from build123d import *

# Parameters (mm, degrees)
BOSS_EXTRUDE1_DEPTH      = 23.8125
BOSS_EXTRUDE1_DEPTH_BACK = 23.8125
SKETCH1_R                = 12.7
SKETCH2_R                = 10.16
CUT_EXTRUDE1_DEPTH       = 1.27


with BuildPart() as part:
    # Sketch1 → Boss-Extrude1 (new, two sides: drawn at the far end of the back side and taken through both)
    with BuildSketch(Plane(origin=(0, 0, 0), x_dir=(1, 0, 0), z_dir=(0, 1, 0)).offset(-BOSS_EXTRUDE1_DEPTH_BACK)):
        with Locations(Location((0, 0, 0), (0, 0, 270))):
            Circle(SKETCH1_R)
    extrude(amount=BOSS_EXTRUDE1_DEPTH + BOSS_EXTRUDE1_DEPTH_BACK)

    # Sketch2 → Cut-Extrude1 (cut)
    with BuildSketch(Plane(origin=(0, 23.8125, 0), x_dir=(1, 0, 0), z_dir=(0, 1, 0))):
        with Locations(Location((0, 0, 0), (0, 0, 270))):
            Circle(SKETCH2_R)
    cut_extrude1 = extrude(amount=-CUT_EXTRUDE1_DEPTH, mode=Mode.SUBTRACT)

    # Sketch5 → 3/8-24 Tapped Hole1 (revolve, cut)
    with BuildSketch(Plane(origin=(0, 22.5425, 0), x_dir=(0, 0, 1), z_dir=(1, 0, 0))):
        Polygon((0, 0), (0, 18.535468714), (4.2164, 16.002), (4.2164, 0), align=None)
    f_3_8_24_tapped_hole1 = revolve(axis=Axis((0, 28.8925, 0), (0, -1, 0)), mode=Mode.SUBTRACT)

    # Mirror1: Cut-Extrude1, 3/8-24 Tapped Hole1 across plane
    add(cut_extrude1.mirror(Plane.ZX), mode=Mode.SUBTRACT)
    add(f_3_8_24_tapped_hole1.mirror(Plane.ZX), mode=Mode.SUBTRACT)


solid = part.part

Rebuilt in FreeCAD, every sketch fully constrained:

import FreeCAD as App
import Part
import Sketcher

V = App.Vector
Q = App.Units.Quantity


def add_polygon(sketch, points):
    """Adds a closed chain of lines whose ends are joined by coincident constraints."""
    first, n = sketch.GeometryCount, len(points)
    for a, b in zip(points, points[1:] + points[:1]):
        sketch.addGeometry(Part.LineSegment(App.Vector(*a, 0), App.Vector(*b, 0)), False)
    for i in range(n):
        sketch.addConstraint(Sketcher.Constraint("Coincident", first + i, 2, first + (i + 1) % n, 1))

doc = App.newDocument("Part")
body = doc.addObject("PartDesign::Body", "Body")

# Sketch on XZ plane
sketch1 = doc.addObject("Sketcher::SketchObject", "Sketch")
body.addObject(sketch1)
sketch1.AttachmentSupport = (doc.XZ_Plane, [""])
sketch1.MapMode = "FlatFace"
sketch1.addGeometry(Part.Circle(V(0, 0, 0), V(0, 0, 1), 13), False)
sketch1.addConstraint(Sketcher.Constraint("Coincident", 0, 3, -1, 1))
sketch1.addConstraint(Sketcher.Constraint("Diameter", 0, Q("1 in")))
pad1 = doc.addObject("PartDesign::Pad", "Pad")
body.addObject(pad1)
pad1.Profile = sketch1
pad1.Type = "TwoLengths"
pad1.Length = Q("0.9375 in")
pad1.Length2 = Q("0.9375 in")
pad1.Reversed = True

# Sketch on XZ plane
sketch2 = doc.addObject("Sketcher::SketchObject", "Sketch001")
body.addObject(sketch2)
sketch2.AttachmentSupport = (doc.XZ_Plane, [""])
sketch2.MapMode = "FlatFace"
sketch2.AttachmentOffset = App.Placement(V(0, 0, -0.9375 * 25.4), App.Rotation())
sketch2.addGeometry(Part.Circle(V(0, 0, 0), V(0, 0, 1), 10), False)
sketch2.addConstraint(Sketcher.Constraint("Coincident", 0, 3, -1, 1))
sketch2.addConstraint(Sketcher.Constraint("Diameter", 0, Q("0.8 in")))
pocket1 = doc.addObject("PartDesign::Pocket", "Pocket")
body.addObject(pocket1)
pocket1.Profile = sketch2
pocket1.Length = Q("0.05 in")
pocket1.Reversed = True

# Sketch on YZ plane
sketch3 = doc.addObject("Sketcher::SketchObject", "Sketch002")
body.addObject(sketch3)
sketch3.AttachmentSupport = (doc.YZ_Plane, [""])
sketch3.MapMode = "FlatFace"
add_polygon(sketch3, [(4, 0), (22.5, 0), (22.5, 4.2), (6.5, 4.2)])  # lines 0-3
sketch3.addConstraint(Sketcher.Constraint("Horizontal", 0))
sketch3.addConstraint(Sketcher.Constraint("Vertical", 1))
sketch3.addConstraint(Sketcher.Constraint("Horizontal", 2))
sketch3.addConstraint(Sketcher.Constraint("PointOnObject", 0, 2, -1))
sketch3.addConstraint(Sketcher.Constraint("Angle", 3, Q("-121 deg")))
sketch3.addConstraint(Sketcher.Constraint("DistanceX", 2, 2, 2, 1, Q("0.63 in")))
sketch3.addConstraint(Sketcher.Constraint("DistanceY", 1, 1, 1, 2, Q("0.166 in")))
sketch3.addConstraint(Sketcher.Constraint("DistanceX", -1, 1, 0, 2, Q("0.8875 in")))
groove = doc.addObject("PartDesign::Groove", "Groove")
body.addObject(groove)
groove.Profile = sketch3
groove.ReferenceAxis = (sketch3, ["H_Axis"])
groove.Angle = 360
doc.recompute()

mirrored = doc.addObject("PartDesign::Mirrored", "Mirrored")
body.addObject(mirrored)
mirrored.Originals = [pocket1, groove]
mirrored.MirrorPlane = (doc.XZ_Plane, [""])
body.Tip = mirrored

doc.recompute()
